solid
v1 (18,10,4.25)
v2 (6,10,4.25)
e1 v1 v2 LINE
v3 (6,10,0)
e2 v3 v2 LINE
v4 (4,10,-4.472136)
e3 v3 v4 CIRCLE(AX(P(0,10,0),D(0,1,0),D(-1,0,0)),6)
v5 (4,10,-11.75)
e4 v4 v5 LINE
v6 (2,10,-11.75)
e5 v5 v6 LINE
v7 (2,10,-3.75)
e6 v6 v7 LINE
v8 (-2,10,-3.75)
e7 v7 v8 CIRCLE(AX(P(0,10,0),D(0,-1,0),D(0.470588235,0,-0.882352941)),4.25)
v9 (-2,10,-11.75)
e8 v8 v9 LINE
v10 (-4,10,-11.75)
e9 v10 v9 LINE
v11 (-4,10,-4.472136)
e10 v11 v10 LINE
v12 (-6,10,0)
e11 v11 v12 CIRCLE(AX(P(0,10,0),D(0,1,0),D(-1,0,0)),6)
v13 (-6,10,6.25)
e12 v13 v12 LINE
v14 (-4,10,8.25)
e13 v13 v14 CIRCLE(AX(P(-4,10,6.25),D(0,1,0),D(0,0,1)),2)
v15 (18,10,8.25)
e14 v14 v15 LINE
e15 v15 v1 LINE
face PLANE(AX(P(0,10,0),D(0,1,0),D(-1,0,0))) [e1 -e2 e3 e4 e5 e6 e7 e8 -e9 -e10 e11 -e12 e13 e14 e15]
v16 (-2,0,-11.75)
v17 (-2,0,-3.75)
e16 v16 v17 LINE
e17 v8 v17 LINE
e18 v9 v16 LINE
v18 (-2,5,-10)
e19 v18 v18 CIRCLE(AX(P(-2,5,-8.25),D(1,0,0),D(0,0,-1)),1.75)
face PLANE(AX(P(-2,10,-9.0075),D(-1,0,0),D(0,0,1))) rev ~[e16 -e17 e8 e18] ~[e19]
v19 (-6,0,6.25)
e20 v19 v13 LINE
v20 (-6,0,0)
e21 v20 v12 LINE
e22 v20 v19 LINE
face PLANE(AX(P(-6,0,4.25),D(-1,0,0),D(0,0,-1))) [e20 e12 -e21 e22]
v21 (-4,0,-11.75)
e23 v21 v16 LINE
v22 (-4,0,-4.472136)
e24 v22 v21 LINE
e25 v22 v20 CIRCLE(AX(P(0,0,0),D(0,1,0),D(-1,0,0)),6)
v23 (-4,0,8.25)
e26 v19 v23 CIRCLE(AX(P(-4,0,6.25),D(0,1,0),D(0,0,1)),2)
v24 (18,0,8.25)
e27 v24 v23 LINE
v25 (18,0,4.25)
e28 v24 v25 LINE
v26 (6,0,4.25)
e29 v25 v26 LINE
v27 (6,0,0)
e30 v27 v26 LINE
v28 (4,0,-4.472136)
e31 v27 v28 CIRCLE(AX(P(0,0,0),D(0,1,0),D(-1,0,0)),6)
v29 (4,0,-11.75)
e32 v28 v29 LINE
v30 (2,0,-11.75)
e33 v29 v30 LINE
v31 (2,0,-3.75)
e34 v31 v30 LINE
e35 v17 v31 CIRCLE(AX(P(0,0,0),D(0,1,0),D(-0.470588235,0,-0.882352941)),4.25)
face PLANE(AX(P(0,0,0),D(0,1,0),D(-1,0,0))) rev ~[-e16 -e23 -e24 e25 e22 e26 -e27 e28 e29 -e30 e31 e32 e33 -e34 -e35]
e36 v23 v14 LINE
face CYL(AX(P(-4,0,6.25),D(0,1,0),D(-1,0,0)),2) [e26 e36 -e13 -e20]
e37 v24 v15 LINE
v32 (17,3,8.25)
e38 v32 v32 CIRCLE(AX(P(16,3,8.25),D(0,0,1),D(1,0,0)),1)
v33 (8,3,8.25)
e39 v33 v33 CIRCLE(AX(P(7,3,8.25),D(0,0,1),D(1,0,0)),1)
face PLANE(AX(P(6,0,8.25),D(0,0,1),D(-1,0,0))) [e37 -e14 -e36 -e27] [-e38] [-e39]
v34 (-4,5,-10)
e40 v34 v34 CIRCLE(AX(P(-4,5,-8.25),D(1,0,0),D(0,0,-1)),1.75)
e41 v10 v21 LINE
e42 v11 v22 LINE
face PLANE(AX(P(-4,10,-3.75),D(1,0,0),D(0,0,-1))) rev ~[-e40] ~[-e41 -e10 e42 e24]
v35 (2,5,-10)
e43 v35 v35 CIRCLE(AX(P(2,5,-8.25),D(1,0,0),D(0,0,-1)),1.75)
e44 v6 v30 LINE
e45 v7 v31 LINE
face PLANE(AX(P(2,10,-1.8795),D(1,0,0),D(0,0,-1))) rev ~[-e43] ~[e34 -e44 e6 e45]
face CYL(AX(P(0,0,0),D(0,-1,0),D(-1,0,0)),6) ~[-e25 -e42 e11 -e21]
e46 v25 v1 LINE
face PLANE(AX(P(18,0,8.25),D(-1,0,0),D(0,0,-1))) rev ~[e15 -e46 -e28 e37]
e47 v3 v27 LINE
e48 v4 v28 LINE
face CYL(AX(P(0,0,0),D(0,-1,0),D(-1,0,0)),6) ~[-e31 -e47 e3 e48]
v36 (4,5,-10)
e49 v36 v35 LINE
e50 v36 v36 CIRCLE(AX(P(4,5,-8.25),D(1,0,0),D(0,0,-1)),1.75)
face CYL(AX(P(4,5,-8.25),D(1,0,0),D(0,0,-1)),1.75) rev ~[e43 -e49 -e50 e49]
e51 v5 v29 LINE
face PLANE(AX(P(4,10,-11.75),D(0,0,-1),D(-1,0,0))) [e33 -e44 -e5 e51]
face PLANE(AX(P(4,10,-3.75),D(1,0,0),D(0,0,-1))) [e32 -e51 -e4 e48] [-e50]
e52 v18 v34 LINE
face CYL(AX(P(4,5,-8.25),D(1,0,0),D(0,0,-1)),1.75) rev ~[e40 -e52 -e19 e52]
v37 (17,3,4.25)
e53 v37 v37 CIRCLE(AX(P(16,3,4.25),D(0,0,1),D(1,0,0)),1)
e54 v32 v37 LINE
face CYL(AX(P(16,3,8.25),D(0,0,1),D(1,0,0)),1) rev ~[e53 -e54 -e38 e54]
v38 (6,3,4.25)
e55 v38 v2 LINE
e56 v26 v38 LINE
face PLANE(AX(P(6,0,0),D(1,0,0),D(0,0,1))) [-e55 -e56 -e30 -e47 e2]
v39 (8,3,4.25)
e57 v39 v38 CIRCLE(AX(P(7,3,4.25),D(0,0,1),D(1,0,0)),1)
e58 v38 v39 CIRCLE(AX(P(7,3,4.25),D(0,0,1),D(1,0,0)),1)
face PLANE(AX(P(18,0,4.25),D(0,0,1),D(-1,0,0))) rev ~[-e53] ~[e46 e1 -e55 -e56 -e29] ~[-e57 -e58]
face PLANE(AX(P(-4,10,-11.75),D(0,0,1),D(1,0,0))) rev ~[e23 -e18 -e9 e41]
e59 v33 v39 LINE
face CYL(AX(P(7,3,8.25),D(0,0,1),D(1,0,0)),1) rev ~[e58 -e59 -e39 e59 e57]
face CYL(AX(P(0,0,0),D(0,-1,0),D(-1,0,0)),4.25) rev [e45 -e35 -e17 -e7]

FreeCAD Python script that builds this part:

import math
import FreeCAD as App
import Part
import Sketcher
from FreeCAD import Vector
Q = App.Units.Quantity


def edges_at(feature, points):
    """Names of the edges that pass closest to the given points."""
    edges = feature.Shape.Edges
    near = lambda p: min(range(len(edges)), key=lambda i: edges[i].distToShape(Part.Vertex(*p))[0])
    return sorted({f"Edge{near(p) + 1}" for p in points})

doc = App.newDocument("Part")
body = doc.addObject("PartDesign::Body", "Body")

# Sketch on XZ plane
sketch1 = body.newObject("Sketcher::SketchObject", "Sketch")
sketch1.AttachmentSupport = (doc.getObject("XZ_Plane"), [""])
sketch1.MapMode = "FlatFace"
sketch1.addGeometry([
    Part.ArcOfCircle(Part.Circle(Vector(0, 0, 0), Vector(0, 0, 1), 6), math.radians(180), math.radians(360)),  # 0
    Part.LineSegment(Vector(-6, 0, 0), Vector(-6, 8.2, 0)),  # 1
    Part.LineSegment(Vector(-6, 8.2, 0), Vector(18, 8.2, 0)),  # 2
    Part.LineSegment(Vector(18, 8.2, 0), Vector(18, 4.2, 0)),  # 3
    Part.LineSegment(Vector(18, 4.2, 0), Vector(6, 4.2, 0)),  # 4
    Part.LineSegment(Vector(6, 4.2, 0), Vector(6, 0, 0)),  # 5
    Part.Circle(Vector(0, 0, 0), Vector(0, 0, 1), 4.2),  # 6
], False)
sketch1.addConstraint([
    Sketcher.Constraint("Tangent", 0, 1, 1, 1),
    Sketcher.Constraint("Coincident", 1, 2, 2, 1),
    Sketcher.Constraint("Coincident", 2, 2, 3, 1),
    Sketcher.Constraint("Coincident", 3, 2, 4, 1),
    Sketcher.Constraint("Coincident", 4, 2, 5, 1),
    Sketcher.Constraint("Tangent", 5, 2, 0, 2),
    Sketcher.Constraint("Vertical", 1),
    Sketcher.Constraint("Horizontal", 2),
    Sketcher.Constraint("Vertical", 3),
    Sketcher.Constraint("Horizontal", 4),
    Sketcher.Constraint("Vertical", 5),
    Sketcher.Constraint("Coincident", 0, 3, -1, 1),
    Sketcher.Constraint("Coincident", 6, 3, -1, 1),
    Sketcher.Constraint("Radius", 0, Q("6 mm")),
    Sketcher.Constraint("Diameter", 6, Q("8.5 mm")),
    Sketcher.Constraint("DistanceX", 4, 2, 4, 1, Q("12 mm")),
    Sketcher.Constraint("DistanceY", 3, 2, 3, 1, Q("4 mm")),
    Sketcher.Constraint("DistanceY", 1, 1, 1, 2, Q("8.25 mm")),
])
pad1 = body.newObject("PartDesign::Pad", "Pad")
pad1.Profile = sketch1
pad1.Length = 10
pad1.Reversed = True

# Sketch on XZ plane
sketch2 = body.newObject("Sketcher::SketchObject", "Sketch001")
sketch2.AttachmentSupport = (doc.getObject("XZ_Plane"), [""])
sketch2.MapMode = "FlatFace"
sketch2.AttachmentOffset = App.Placement(Vector(0, 0, -10), App.Rotation())
sketch2.addGeometry([
    Part.LineSegment(Vector(-2, -9, 0), Vector(-2, -1.9, 0)),
    Part.LineSegment(Vector(-2, -1.9, 0), Vector(2, -1.9, 0)),
    Part.LineSegment(Vector(2, -1.9, 0), Vector(2, -9, 0)),
    Part.LineSegment(Vector(2, -9, 0), Vector(-2, -9, 0)),
], False)
sketch2.addConstraint([
    Sketcher.Constraint("Coincident", 0, 2, 1, 1),
    Sketcher.Constraint("Coincident", 1, 2, 2, 1),
    Sketcher.Constraint("Coincident", 2, 2, 3, 1),
    Sketcher.Constraint("Coincident", 3, 2, 0, 1),
    Sketcher.Constraint("Vertical", 0),
    Sketcher.Constraint("Horizontal", 1),
    Sketcher.Constraint("Vertical", 2),
    Sketcher.Constraint("Horizontal", 3),
    Sketcher.Constraint("DistanceX", 0, 2, -1, 1, Q("2 mm")),
    Sketcher.Constraint("DistanceX", -1, 1, 1, 2, Q("2 mm")),
    Sketcher.Constraint("DistanceY", 0, 1, 0, 2, Q("7.128 mm")),
    Sketcher.Constraint("DistanceY", 0, 2, -1, 1, Q("1.8795 mm")),
])
pocket1 = body.newObject("PartDesign::Pocket", "Pocket")
pocket1.Profile = sketch2
pocket1.Length = 10
pocket1.Reversed = True

# Sketch on XZ plane
sketch3 = body.newObject("Sketcher::SketchObject", "Sketch002")
sketch3.AttachmentSupport = (doc.getObject("XZ_Plane"), [""])
sketch3.MapMode = "FlatFace"
sketch3.AttachmentOffset = App.Placement(Vector(0, 0, -10), App.Rotation())
sketch3.addGeometry([
    Part.LineSegment(Vector(2, -11.8, 0), Vector(2, -3.8, 0)),  # 0
    Part.LineSegment(Vector(2, -3.8, 0), Vector(4, -3.8, 0)),  # 1
    Part.LineSegment(Vector(4, -3.8, 0), Vector(4, -11.8, 0)),  # 2
    Part.LineSegment(Vector(4, -11.8, 0), Vector(2, -11.8, 0)),  # 3
    Part.LineSegment(Vector(-4, -3.8, 0), Vector(-2, -3.8, 0)),  # 4
    Part.LineSegment(Vector(-2, -3.8, 0), Vector(-2, -11.8, 0)),  # 5
    Part.LineSegment(Vector(-2, -11.8, 0), Vector(-4, -11.8, 0)),  # 6
    Part.LineSegment(Vector(-4, -11.8, 0), Vector(-4, -3.8, 0)),  # 7
], False)
sketch3.addConstraint([
    Sketcher.Constraint("Coincident", 0, 2, 1, 1),
    Sketcher.Constraint("Coincident", 1, 2, 2, 1),
    Sketcher.Constraint("Coincident", 2, 2, 3, 1),
    Sketcher.Constraint("Coincident", 3, 2, 0, 1),
    Sketcher.Constraint("Coincident", 4, 2, 5, 1),
    Sketcher.Constraint("Coincident", 5, 2, 6, 1),
    Sketcher.Constraint("Coincident", 6, 2, 7, 1),
    Sketcher.Constraint("Coincident", 7, 2, 4, 1),
    Sketcher.Constraint("Vertical", 0),
    Sketcher.Constraint("Horizontal", 1),
    Sketcher.Constraint("Vertical", 2),
    Sketcher.Constraint("Horizontal", 3),
    Sketcher.Constraint("Horizontal", 4),
    Sketcher.Constraint("Vertical", 5),
    Sketcher.Constraint("Horizontal", 6),
    Sketcher.Constraint("Vertical", 7),
    Sketcher.Constraint("Symmetric", 0, 2, 4, 2, -2),
    Sketcher.Constraint("Symmetric", 2, 2, 6, 2, -2),
    Sketcher.Constraint("DistanceX", 1, 1, 1, 2, Q("2 mm")),
    Sketcher.Constraint("DistanceY", 0, 1, 0, 2, Q("8 mm")),
    Sketcher.Constraint("DistanceX", -1, 1, 0, 2, Q("2 mm")),
    Sketcher.Constraint("DistanceY", 0, 2, -1, 1, Q("3.75 mm")),
])
pad2 = body.newObject("PartDesign::Pad", "Pad001")
pad2.Profile = sketch3
pad2.Length = 10

# Sketch on YZ plane
sketch4 = body.newObject("Sketcher::SketchObject", "Sketch003")
sketch4.AttachmentSupport = (doc.getObject("YZ_Plane"), [""])
sketch4.MapMode = "FlatFace"
sketch4.AttachmentOffset = App.Placement(Vector(0, 0, 4), App.Rotation())
sketch4.addGeometry(Part.Circle(Vector(5, -8.2, 0), Vector(0, 0, 1), 1.8), False)
sketch4.addConstraint([
    Sketcher.Constraint("Diameter", 0, Q("3.5 mm")),
    Sketcher.Constraint("DistanceX", -1, 1, 0, 3, Q("5 mm")),
    Sketcher.Constraint("DistanceY", 0, 3, -1, 1, Q("8.25 mm")),
])
pocket2 = body.newObject("PartDesign::Pocket", "Pocket001")
pocket2.Profile = sketch4
pocket2.Type = "ThroughAll"

# Sketch on XY plane
sketch5 = body.newObject("Sketcher::SketchObject", "Sketch004")
sketch5.AttachmentSupport = (doc.getObject("XY_Plane"), [""])
sketch5.MapMode = "FlatFace"
sketch5.AttachmentOffset = App.Placement(Vector(0, 0, 8.25), App.Rotation())
sketch5.addGeometry([
    Part.Circle(Vector(7, 3, 0), Vector(0, 0, 1), 1),
    Part.Circle(Vector(16, 3, 0), Vector(0, 0, 1), 1),
], False)
sketch5.addConstraint([
    Sketcher.Constraint("Equal", 0, 1),
    Sketcher.Constraint("Horizontal", 0, 3, 1, 3),
    Sketcher.Constraint("Diameter", 0, Q("2 mm")),
    Sketcher.Constraint("DistanceX", -1, 1, 0, 3, Q("7 mm")),
    Sketcher.Constraint("DistanceX", -1, 1, 1, 3, Q("16 mm")),
    Sketcher.Constraint("DistanceY", -1, 1, 0, 3, Q("3 mm")),
])
pocket3 = body.newObject("PartDesign::Pocket", "Pocket002")
pocket3.Profile = sketch5
pocket3.Type = "ThroughAll"
doc.recompute()

fillet = body.newObject("PartDesign::Fillet", "Fillet")
fillet.Base = (pocket3, edges_at(pocket3, [(-6, 5, 8.25)]))
fillet.Radius = 2

doc.recompute()
